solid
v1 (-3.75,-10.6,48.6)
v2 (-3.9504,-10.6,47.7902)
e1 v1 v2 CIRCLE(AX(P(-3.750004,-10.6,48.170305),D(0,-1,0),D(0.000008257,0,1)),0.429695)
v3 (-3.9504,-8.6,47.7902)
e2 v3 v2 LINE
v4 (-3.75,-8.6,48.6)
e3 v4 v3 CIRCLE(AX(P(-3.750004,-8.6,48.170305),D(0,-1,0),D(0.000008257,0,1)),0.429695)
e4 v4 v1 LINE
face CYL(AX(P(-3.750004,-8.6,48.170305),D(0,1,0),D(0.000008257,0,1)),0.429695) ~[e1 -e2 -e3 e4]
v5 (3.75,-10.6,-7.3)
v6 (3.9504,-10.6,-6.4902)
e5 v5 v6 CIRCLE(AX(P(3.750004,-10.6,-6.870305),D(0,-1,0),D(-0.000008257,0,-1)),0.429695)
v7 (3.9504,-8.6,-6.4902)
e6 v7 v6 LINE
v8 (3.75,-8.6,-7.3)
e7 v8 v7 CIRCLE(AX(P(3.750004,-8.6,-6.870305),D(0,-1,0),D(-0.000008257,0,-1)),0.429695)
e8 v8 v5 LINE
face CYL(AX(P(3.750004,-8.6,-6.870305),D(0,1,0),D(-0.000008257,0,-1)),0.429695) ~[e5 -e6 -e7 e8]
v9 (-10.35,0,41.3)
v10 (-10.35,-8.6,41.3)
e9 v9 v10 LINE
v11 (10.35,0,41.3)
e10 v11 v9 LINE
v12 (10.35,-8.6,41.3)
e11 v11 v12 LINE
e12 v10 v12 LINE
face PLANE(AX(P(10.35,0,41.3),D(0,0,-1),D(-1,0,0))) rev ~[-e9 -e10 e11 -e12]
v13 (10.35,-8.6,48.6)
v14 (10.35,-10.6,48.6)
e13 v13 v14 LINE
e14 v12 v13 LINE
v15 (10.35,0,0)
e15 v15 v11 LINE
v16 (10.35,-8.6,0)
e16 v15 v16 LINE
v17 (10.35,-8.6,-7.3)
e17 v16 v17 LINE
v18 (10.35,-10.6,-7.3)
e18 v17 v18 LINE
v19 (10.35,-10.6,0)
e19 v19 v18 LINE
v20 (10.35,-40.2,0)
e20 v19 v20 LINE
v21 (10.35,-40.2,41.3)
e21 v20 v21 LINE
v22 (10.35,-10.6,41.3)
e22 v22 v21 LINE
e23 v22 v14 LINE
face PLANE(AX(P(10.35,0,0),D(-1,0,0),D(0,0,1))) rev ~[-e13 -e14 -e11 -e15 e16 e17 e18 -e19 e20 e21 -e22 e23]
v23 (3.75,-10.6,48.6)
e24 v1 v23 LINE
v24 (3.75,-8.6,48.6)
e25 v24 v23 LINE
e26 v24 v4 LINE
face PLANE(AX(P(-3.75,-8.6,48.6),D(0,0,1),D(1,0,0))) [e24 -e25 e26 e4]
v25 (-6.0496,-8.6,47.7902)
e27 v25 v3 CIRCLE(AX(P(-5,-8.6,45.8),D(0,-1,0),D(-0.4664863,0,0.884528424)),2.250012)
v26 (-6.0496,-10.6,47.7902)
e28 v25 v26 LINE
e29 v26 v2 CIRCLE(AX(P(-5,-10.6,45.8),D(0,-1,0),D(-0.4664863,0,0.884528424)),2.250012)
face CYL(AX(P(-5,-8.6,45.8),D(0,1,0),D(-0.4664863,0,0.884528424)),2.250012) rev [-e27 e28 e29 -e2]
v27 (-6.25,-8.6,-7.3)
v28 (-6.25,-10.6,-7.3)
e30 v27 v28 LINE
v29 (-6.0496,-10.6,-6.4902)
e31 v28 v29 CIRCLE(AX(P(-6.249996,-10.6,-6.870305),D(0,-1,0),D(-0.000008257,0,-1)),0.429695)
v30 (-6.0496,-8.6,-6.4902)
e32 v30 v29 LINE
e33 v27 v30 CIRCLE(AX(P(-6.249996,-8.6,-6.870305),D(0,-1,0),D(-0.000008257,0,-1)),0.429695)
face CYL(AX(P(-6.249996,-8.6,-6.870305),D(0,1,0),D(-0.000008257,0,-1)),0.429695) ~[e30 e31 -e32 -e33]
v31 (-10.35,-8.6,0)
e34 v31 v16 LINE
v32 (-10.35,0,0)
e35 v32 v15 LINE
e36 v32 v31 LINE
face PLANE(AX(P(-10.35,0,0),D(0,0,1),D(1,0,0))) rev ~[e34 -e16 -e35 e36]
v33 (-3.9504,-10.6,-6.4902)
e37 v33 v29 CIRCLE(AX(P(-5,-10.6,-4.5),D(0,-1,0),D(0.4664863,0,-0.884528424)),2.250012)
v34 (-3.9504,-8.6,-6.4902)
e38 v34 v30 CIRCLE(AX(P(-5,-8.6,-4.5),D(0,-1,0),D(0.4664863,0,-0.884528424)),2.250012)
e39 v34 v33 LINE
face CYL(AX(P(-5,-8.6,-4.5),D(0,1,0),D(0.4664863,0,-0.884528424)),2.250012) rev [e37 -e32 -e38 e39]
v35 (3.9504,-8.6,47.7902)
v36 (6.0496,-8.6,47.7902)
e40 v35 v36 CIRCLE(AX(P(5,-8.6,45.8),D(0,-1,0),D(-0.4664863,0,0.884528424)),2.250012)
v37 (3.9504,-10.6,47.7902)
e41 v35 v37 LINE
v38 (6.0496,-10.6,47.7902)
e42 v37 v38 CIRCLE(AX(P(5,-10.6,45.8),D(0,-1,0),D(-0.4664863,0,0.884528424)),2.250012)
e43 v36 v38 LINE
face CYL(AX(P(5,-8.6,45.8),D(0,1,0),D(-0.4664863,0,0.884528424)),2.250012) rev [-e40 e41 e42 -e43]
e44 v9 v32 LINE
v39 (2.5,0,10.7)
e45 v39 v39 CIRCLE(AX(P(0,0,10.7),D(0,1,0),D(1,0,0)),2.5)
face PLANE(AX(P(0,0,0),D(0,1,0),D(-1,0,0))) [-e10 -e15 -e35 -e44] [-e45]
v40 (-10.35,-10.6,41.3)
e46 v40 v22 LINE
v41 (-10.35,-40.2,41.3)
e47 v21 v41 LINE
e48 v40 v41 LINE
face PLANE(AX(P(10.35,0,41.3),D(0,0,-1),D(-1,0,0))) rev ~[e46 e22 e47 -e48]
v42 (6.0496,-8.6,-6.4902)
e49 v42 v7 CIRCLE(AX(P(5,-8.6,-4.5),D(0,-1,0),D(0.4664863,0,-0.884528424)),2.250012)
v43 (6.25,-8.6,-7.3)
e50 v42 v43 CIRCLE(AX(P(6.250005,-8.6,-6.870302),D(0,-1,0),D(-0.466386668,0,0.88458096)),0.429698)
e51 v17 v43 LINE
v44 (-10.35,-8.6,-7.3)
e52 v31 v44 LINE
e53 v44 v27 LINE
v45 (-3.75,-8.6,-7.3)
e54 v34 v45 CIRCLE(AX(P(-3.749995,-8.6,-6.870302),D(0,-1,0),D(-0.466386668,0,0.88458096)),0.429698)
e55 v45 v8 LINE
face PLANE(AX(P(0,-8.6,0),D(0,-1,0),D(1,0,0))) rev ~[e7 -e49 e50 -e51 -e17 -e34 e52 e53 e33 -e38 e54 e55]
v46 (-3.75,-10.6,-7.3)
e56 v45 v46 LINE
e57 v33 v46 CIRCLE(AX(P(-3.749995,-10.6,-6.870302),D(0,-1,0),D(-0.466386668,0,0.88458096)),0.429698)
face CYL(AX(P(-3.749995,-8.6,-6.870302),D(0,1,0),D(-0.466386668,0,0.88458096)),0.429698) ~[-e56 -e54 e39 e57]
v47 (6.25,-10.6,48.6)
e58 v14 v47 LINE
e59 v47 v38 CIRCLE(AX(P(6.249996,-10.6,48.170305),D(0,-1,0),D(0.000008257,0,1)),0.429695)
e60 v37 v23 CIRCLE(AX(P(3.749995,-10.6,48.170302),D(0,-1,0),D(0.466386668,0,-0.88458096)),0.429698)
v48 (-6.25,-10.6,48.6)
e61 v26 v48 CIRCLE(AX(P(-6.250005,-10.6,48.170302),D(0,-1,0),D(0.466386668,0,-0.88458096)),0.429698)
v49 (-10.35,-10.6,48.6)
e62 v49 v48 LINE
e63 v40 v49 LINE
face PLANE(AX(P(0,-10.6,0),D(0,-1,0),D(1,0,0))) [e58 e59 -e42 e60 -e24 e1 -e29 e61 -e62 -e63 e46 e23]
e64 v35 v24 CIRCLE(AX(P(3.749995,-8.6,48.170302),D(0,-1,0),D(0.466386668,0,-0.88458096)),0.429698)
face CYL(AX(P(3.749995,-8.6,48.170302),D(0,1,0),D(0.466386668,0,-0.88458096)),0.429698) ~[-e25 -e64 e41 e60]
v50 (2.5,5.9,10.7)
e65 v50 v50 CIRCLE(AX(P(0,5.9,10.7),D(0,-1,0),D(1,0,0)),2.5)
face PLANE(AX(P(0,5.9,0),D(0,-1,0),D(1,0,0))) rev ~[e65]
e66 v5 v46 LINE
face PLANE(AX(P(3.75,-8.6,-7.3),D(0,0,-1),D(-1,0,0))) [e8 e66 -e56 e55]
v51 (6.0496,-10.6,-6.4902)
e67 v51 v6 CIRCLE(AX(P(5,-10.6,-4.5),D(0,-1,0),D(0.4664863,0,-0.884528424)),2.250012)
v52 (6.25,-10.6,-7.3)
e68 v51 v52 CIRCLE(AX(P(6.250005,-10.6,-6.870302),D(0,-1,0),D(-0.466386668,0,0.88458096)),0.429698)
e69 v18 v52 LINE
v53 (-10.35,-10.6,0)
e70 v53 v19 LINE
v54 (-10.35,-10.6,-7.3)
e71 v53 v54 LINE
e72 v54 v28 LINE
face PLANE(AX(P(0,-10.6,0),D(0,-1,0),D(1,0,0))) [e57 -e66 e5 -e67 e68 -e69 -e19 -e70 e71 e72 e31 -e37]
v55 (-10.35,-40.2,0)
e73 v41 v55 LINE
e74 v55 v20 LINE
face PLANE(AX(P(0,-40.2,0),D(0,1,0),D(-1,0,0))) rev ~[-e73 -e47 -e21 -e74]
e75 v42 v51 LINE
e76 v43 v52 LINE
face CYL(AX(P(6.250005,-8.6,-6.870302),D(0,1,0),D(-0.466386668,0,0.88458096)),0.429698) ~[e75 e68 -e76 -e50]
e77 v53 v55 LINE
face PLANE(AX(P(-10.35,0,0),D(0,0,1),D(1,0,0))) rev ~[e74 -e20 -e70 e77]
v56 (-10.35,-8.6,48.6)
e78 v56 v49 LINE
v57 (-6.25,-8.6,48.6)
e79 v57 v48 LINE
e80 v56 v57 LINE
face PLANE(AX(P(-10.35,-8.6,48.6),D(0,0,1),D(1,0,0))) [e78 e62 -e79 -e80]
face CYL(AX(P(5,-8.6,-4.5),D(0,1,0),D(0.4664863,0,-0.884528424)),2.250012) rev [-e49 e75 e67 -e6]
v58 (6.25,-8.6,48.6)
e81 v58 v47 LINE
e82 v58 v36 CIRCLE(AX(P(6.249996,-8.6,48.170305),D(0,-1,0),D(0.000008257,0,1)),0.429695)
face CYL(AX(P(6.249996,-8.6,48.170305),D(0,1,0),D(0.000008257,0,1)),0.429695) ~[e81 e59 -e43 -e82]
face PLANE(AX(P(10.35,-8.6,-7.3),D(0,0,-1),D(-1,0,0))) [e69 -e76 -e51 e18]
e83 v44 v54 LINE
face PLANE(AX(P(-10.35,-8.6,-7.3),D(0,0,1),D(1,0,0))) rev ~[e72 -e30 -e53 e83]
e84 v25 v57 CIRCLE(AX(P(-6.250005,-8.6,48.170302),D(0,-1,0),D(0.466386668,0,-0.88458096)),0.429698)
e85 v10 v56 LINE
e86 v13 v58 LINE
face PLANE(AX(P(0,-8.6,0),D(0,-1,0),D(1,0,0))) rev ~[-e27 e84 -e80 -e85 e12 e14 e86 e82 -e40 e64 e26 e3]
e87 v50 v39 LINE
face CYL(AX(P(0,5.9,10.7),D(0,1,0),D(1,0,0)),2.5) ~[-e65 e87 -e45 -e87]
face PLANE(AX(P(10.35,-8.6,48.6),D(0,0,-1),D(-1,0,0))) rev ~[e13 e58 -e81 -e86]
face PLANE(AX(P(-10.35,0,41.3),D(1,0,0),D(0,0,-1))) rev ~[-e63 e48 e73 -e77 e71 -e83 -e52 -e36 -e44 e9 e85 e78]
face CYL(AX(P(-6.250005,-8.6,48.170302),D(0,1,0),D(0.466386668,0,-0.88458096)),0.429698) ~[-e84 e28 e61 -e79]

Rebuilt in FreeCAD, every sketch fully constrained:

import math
import FreeCAD as App
import Part
import Sketcher

V = App.Vector
Q = App.Units.Quantity

doc = App.newDocument("Part")
body = doc.addObject("PartDesign::Body", "Body")

# Sketch on XZ plane
sketch1 = doc.addObject("Sketcher::SketchObject", "Sketch")
body.addObject(sketch1)
sketch1.AttachmentSupport = (doc.XZ_Plane, [""])
sketch1.MapMode = "FlatFace"
sketch1.addGeometry(Part.LineSegment(V(10, 0, 0), V(-10, 0, 0)), False)
sketch1.addGeometry(Part.LineSegment(V(-10, 0, 0), V(-10, 41, 0)), False)
sketch1.addGeometry(Part.LineSegment(V(-10, 41, 0), V(10, 41, 0)), False)
sketch1.addGeometry(Part.LineSegment(V(10, 41, 0), V(10, 0, 0)), False)
sketch1.addConstraint(Sketcher.Constraint("Coincident", 0, 2, 1, 1))
sketch1.addConstraint(Sketcher.Constraint("Coincident", 1, 2, 2, 1))
sketch1.addConstraint(Sketcher.Constraint("Coincident", 2, 2, 3, 1))
sketch1.addConstraint(Sketcher.Constraint("Coincident", 3, 2, 0, 1))
sketch1.addConstraint(Sketcher.Constraint("Horizontal", 0))
sketch1.addConstraint(Sketcher.Constraint("Vertical", 1))
sketch1.addConstraint(Sketcher.Constraint("Horizontal", 2))
sketch1.addConstraint(Sketcher.Constraint("Vertical", 3))
sketch1.addConstraint(Sketcher.Constraint("Symmetric", 0, 2, 3, 2, -1, 1))
sketch1.addConstraint(Sketcher.Constraint("DistanceX", 0, 2, 0, 1, Q("20.7 mm")))
sketch1.addConstraint(Sketcher.Constraint("DistanceY", 1, 1, 1, 2, Q("41.3 mm")))
pad1 = doc.addObject("PartDesign::Pad", "Pad")
body.addObject(pad1)
pad1.Profile = sketch1
pad1.Length = 40.2

# Sketch on XZ plane
sketch2 = doc.addObject("Sketcher::SketchObject", "Sketch001")
body.addObject(sketch2)
sketch2.AttachmentSupport = (doc.XZ_Plane, [""])
sketch2.MapMode = "FlatFace"
sketch2.AttachmentOffset = App.Placement(V(0, 0, 8.6), App.Rotation())
sketch2.addGeometry(Part.LineSegment(V(10.35, 0, 0), V(-10.35, 0, 0)), False)
sketch2.addGeometry(Part.LineSegment(V(-10.35, 0, 0), V(-10.35, -7.3, 0)), False)
sketch2.addGeometry(Part.LineSegment(V(-10.35, -7.3, 0), V(-6.25, -7.3, 0)), False)
sketch2.addGeometry(Part.ArcOfCircle(Part.Circle(V(-6.25, -6.87, 0), V(0, 0, 1), 0.43), math.radians(-90), math.radians(62)), False)
sketch2.addGeometry(Part.ArcOfCircle(Part.Circle(V(-5, -4.5, 0), V(0, 0, 1), 2.25), math.radians(-62), math.radians(242)), False)
sketch2.addGeometry(Part.ArcOfCircle(Part.Circle(V(-3.75, -6.87, 0), V(0, 0, 1), 0.43), math.radians(118), math.radians(270)), False)
sketch2.addGeometry(Part.LineSegment(V(-3.75, -7.3, 0), V(3.75, -7.3, 0)), False)
sketch2.addGeometry(Part.ArcOfCircle(Part.Circle(V(3.75, -6.87, 0), V(0, 0, 1), 0.43), math.radians(-90), math.radians(62)), False)
sketch2.addGeometry(Part.ArcOfCircle(Part.Circle(V(5, -4.5, 0), V(0, 0, 1), 2.25), math.radians(-62), math.radians(242)), False)
sketch2.addGeometry(Part.ArcOfCircle(Part.Circle(V(6.25, -6.87, 0), V(0, 0, 1), 0.43), math.radians(118), math.radians(270)), False)
sketch2.addGeometry(Part.LineSegment(V(6.25, -7.3, 0), V(10.35, -7.3, 0)), False)
sketch2.addGeometry(Part.LineSegment(V(10.35, -7.3, 0), V(10.35, 0, 0)), False)
sketch2.addGeometry(Part.LineSegment(V(-10.35, 48.6, 0), V(-10.35, 41.3, 0)), False)
sketch2.addGeometry(Part.LineSegment(V(-10.35, 41.3, 0), V(10.35, 41.3, 0)), False)
sketch2.addGeometry(Part.LineSegment(V(10.35, 41.3, 0), V(10.35, 48.6, 0)), False)
sketch2.addGeometry(Part.LineSegment(V(10.35, 48.6, 0), V(6.25, 48.6, 0)), False)
sketch2.addGeometry(Part.ArcOfCircle(Part.Circle(V(6.25, 48.17, 0), V(0, 0, 1), 0.43), math.radians(90), math.radians(242)), False)
sketch2.addGeometry(Part.ArcOfCircle(Part.Circle(V(5, 45.8, 0), V(0, 0, 1), 2.25), math.radians(118), math.radians(422)), False)
sketch2.addGeometry(Part.ArcOfCircle(Part.Circle(V(3.75, 48.17, 0), V(0, 0, 1), 0.43), math.radians(-62), math.radians(90)), False)
sketch2.addGeometry(Part.LineSegment(V(3.75, 48.6, 0), V(-3.75, 48.6, 0)), False)
sketch2.addGeometry(Part.ArcOfCircle(Part.Circle(V(-3.75, 48.17, 0), V(0, 0, 1), 0.43), math.radians(90), math.radians(242)), False)
sketch2.addGeometry(Part.ArcOfCircle(Part.Circle(V(-5, 45.8, 0), V(0, 0, 1), 2.25), math.radians(118), math.radians(422)), False)
sketch2.addGeometry(Part.ArcOfCircle(Part.Circle(V(-6.25, 48.17, 0), V(0, 0, 1), 0.43), math.radians(-62), math.radians(90)), False)
sketch2.addGeometry(Part.LineSegment(V(-6.25, 48.6, 0), V(-10.35, 48.6, 0)), False)
sketch2.addConstraint(Sketcher.Constraint("Coincident", 0, 2, 1, 1))
sketch2.addConstraint(Sketcher.Constraint("Coincident", 1, 2, 2, 1))
sketch2.addConstraint(Sketcher.Constraint("Tangent", 2, 2, 3, 1))
sketch2.addConstraint(Sketcher.Constraint("Tangent", 3, 2, 4, 2))
sketch2.addConstraint(Sketcher.Constraint("Tangent", 4, 1, 5, 1))
sketch2.addConstraint(Sketcher.Constraint("Tangent", 5, 2, 6, 1))
sketch2.addConstraint(Sketcher.Constraint("Tangent", 6, 2, 7, 1))
sketch2.addConstraint(Sketcher.Constraint("Tangent", 7, 2, 8, 2))
sketch2.addConstraint(Sketcher.Constraint("Tangent", 8, 1, 9, 1))
sketch2.addConstraint(Sketcher.Constraint("Tangent", 9, 2, 10, 1))
sketch2.addConstraint(Sketcher.Constraint("Coincident", 10, 2, 11, 1))
sketch2.addConstraint(Sketcher.Constraint("Coincident", 11, 2, 0, 1))
sketch2.addConstraint(Sketcher.Constraint("Coincident", 12, 2, 13, 1))
sketch2.addConstraint(Sketcher.Constraint("Coincident", 13, 2, 14, 1))
sketch2.addConstraint(Sketcher.Constraint("Coincident", 14, 2, 15, 1))
sketch2.addConstraint(Sketcher.Constraint("Tangent", 15, 2, 16, 1))
sketch2.addConstraint(Sketcher.Constraint("Tangent", 16, 2, 17, 2))
sketch2.addConstraint(Sketcher.Constraint("Tangent", 17, 1, 18, 1))
sketch2.addConstraint(Sketcher.Constraint("Tangent", 18, 2, 19, 1))
sketch2.addConstraint(Sketcher.Constraint("Tangent", 19, 2, 20, 1))
sketch2.addConstraint(Sketcher.Constraint("Tangent", 20, 2, 21, 2))
sketch2.addConstraint(Sketcher.Constraint("Tangent", 21, 1, 22, 1))
sketch2.addConstraint(Sketcher.Constraint("Tangent", 22, 2, 23, 1))
sketch2.addConstraint(Sketcher.Constraint("Coincident", 23, 2, 12, 1))
sketch2.addConstraint(Sketcher.Constraint("Horizontal", 0))
sketch2.addConstraint(Sketcher.Constraint("Vertical", 1))
sketch2.addConstraint(Sketcher.Constraint("Horizontal", 2))
sketch2.addConstraint(Sketcher.Constraint("Horizontal", 6))
sketch2.addConstraint(Sketcher.Constraint("Horizontal", 10))
sketch2.addConstraint(Sketcher.Constraint("Vertical", 11))
sketch2.addConstraint(Sketcher.Constraint("Vertical", 12))
sketch2.addConstraint(Sketcher.Constraint("Horizontal", 13))
sketch2.addConstraint(Sketcher.Constraint("Vertical", 14))
sketch2.addConstraint(Sketcher.Constraint("Horizontal", 15))
sketch2.addConstraint(Sketcher.Constraint("Horizontal", 19))
sketch2.addConstraint(Sketcher.Constraint("Horizontal", 23))
sketch2.addConstraint(Sketcher.Constraint("Equal", 3, 5))
sketch2.addConstraint(Sketcher.Constraint("Equal", 5, 7))
sketch2.addConstraint(Sketcher.Constraint("Equal", 4, 8))
sketch2.addConstraint(Sketcher.Constraint("Equal", 7, 9))
sketch2.addConstraint(Sketcher.Constraint("Equal", 9, 16))
sketch2.addConstraint(Sketcher.Constraint("Equal", 8, 17))
sketch2.addConstraint(Sketcher.Constraint("Equal", 16, 18))
sketch2.addConstraint(Sketcher.Constraint("Equal", 18, 20))
sketch2.addConstraint(Sketcher.Constraint("Equal", 17, 21))
sketch2.addConstraint(Sketcher.Constraint("Equal", 20, 22))
sketch2.addConstraint(Sketcher.Constraint("Symmetric", 0, 2, 11, 2, -1, 1))
sketch2.addConstraint(Sketcher.Constraint("Symmetric", 4, 3, 8, 3, -2))
sketch2.addConstraint(Sketcher.Constraint("Symmetric", 17, 3, 21, 3, -2))
sketch2.addConstraint(Sketcher.Constraint("Symmetric", 14, 2, 23, 2, -2))
sketch2.addConstraint(Sketcher.Constraint("Horizontal", 3, 3, 5, 3))
sketch2.addConstraint(Sketcher.Constraint("Horizontal", 7, 3, 9, 3))
sketch2.addConstraint(Sketcher.Constraint("Horizontal", 16, 3, 18, 3))
sketch2.addConstraint(Sketcher.Constraint("Vertical", 9, 3, 16, 3))
sketch2.addConstraint(Sketcher.Constraint("Vertical", 8, 3, 17, 3))
sketch2.addConstraint(Sketcher.Constraint("Vertical", 1, 2, 12, 2))
sketch2.addConstraint(Sketcher.Constraint("Equal", 11, 12))
sketch2.addConstraint(Sketcher.Constraint("Radius", 4, Q("2.25 mm")))
sketch2.addConstraint(Sketcher.Constraint("DistanceX", 3, 3, 7, 3, Q("10 mm")))
sketch2.addConstraint(Sketcher.Constraint("DistanceY", 4, 3, -1, 1, Q("4.5 mm")))
sketch2.addConstraint(Sketcher.Constraint("DistanceX", 3, 3, 5, 3, Q("2.5 mm")))
sketch2.addConstraint(Sketcher.Constraint("DistanceY", 8, 3, 17, 3, Q("50.3 mm")))
sketch2.addConstraint(Sketcher.Constraint("DistanceX", 0, 2, 0, 1, Q("20.7 mm")))
sketch2.addConstraint(Sketcher.Constraint("DistanceY", 1, 2, 1, 1, Q("7.3 mm")))
pad2 = doc.addObject("PartDesign::Pad", "Pad001")
body.addObject(pad2)
pad2.Profile = sketch2
pad2.Length = 2

# Sketch on XZ plane
sketch3 = doc.addObject("Sketcher::SketchObject", "Sketch002")
body.addObject(sketch3)
sketch3.AttachmentSupport = (doc.XZ_Plane, [""])
sketch3.MapMode = "FlatFace"
sketch3.AttachmentOffset = App.Placement(V(0, 0, -5.9), App.Rotation())
sketch3.addGeometry(Part.Circle(V(0, 10.7, 0), V(0, 0, 1), 2.5), False)
sketch3.addConstraint(Sketcher.Constraint("PointOnObject", 0, 3, -2))
sketch3.addConstraint(Sketcher.Constraint("Diameter", 0, Q("5 mm")))
sketch3.addConstraint(Sketcher.Constraint("DistanceY", -1, 1, 0, 3, Q("10.7 mm")))
pad3 = doc.addObject("PartDesign::Pad", "Pad002")
body.addObject(pad3)
pad3.Profile = sketch3
pad3.Type = "UpToFirst"

doc.recompute()
